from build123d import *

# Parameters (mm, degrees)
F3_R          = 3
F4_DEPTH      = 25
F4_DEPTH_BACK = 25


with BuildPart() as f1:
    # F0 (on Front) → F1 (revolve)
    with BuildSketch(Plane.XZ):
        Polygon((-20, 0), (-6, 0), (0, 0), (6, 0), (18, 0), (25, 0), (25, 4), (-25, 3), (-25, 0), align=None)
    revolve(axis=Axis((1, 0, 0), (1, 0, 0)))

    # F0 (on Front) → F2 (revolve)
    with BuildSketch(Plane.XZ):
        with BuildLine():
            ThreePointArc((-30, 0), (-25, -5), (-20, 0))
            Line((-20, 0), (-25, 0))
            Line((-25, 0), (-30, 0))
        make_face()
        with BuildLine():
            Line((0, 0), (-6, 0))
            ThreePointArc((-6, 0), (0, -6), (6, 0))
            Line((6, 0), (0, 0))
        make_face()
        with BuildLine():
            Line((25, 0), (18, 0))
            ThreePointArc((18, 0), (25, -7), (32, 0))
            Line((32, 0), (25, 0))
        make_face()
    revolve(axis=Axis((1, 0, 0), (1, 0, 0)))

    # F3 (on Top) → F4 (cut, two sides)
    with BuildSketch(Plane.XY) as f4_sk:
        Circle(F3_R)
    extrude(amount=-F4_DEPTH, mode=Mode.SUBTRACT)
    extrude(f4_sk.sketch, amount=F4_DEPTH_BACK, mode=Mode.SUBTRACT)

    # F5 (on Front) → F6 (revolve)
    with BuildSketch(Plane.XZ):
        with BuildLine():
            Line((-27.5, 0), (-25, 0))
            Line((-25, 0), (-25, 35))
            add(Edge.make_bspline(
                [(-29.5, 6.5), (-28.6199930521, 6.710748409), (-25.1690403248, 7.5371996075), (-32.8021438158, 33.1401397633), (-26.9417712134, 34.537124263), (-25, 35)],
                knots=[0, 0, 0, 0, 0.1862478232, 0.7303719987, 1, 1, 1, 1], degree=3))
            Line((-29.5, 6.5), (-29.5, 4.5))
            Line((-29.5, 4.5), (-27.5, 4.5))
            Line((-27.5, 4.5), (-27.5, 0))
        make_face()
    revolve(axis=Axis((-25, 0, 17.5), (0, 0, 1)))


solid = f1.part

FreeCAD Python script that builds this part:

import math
import FreeCAD as App
import Part
import Sketcher
from FreeCAD import Vector

doc = App.newDocument("Part")
body = doc.addObject("PartDesign::Body", "Body")

# Sketch on XZ plane
sketch1 = body.newObject("Sketcher::SketchObject", "Sketch")
sketch1.AttachmentSupport = (doc.getObject("XZ_Plane"), [""])
sketch1.MapMode = "FlatFace"
sketch1.addGeometry([
    Part.LineSegment(Vector(25, 0, 0), Vector(25, 4, 0)),
    Part.LineSegment(Vector(25, 4, 0), Vector(-25, 3, 0)),
    Part.LineSegment(Vector(-25, 3, 0), Vector(-25, 0, 0)),
    Part.LineSegment(Vector(-25, 0, 0), Vector(25, 0, 0)),
], False)
sketch1.addConstraint([
    Sketcher.Constraint("Coincident", 0, 2, 1, 1),
    Sketcher.Constraint("Coincident", 1, 2, 2, 1),
    Sketcher.Constraint("Coincident", 2, 2, 3, 1),
    Sketcher.Constraint("Coincident", 3, 2, 0, 1),
    Sketcher.Constraint("Vertical", 0),
    Sketcher.Constraint("Vertical", 2),
    Sketcher.Constraint("Horizontal", 3),
    Sketcher.Constraint("Symmetric", 2, 2, 3, 2, -1, 1),
    Sketcher.Constraint("DistanceX", 3, 1, 3, 2, 50.0),
    Sketcher.Constraint("DistanceY", 0, 1, 0, 2, 4.0),
    Sketcher.Constraint("DistanceY", 2, 2, 2, 1, 3.0),
])
revolution = body.newObject("PartDesign::Revolution", "Revolution")
revolution.Profile = sketch1
revolution.ReferenceAxis = (sketch1, ["H_Axis"])
revolution.Angle = 360

# Sketch on XZ plane
sketch2 = body.newObject("Sketcher::SketchObject", "Sketch001")
sketch2.AttachmentSupport = (doc.getObject("XZ_Plane"), [""])
sketch2.MapMode = "FlatFace"
sketch2.addGeometry([
    Part.ArcOfCircle(Part.Circle(Vector(-25, 0, 0), Vector(0, 0, 1), 5), math.radians(180), math.radians(360)),  # 0
    Part.LineSegment(Vector(-20, 0, 0), Vector(-30, 0, 0)),  # 1
    Part.ArcOfCircle(Part.Circle(Vector(0, 0, 0), Vector(0, 0, 1), 6), math.radians(180), math.radians(360)),  # 2
    Part.LineSegment(Vector(6, 0, 0), Vector(-6, 0, 0)),  # 3
    Part.ArcOfCircle(Part.Circle(Vector(25, 0, 0), Vector(0, 0, 1), 7), math.radians(180), math.radians(360)),  # 4
    Part.LineSegment(Vector(32, 0, 0), Vector(18, 0, 0)),  # 5
], False)
sketch2.addConstraint([
    Sketcher.Constraint("Coincident", 0, 1, 1, 2),
    Sketcher.Constraint("Coincident", 1, 1, 0, 2),
    Sketcher.Constraint("Coincident", 2, 1, 3, 2),
    Sketcher.Constraint("Coincident", 3, 1, 2, 2),
    Sketcher.Constraint("Coincident", 4, 1, 5, 2),
    Sketcher.Constraint("Coincident", 5, 1, 4, 2),
    Sketcher.Constraint("Horizontal", 1),
    Sketcher.Constraint("Horizontal", 3),
    Sketcher.Constraint("Horizontal", 5),
    Sketcher.Constraint("Coincident", 2, 3, -1, 1),
    Sketcher.Constraint("Symmetric", 0, 3, 4, 3, -1, 1),
    Sketcher.Constraint("PointOnObject", 0, 3, -1),
    Sketcher.Constraint("PointOnObject", 0, 1, -1),
    Sketcher.Constraint("PointOnObject", 2, 1, -1),
    Sketcher.Constraint("PointOnObject", 4, 1, -1),
    Sketcher.Constraint("Radius", 0, 5.0),
    Sketcher.Constraint("Radius", 2, 6.0),
    Sketcher.Constraint("Radius", 4, 7.0),
    Sketcher.Constraint("DistanceX", 0, 3, -1, 1, 25.0),
])
revolution2 = body.newObject("PartDesign::Revolution", "Revolution001")
revolution2.Profile = sketch2
revolution2.ReferenceAxis = (sketch2, ["H_Axis"])
revolution2.Angle = 360

# Sketch on XY plane
sketch3 = body.newObject("Sketcher::SketchObject", "Sketch002")
sketch3.AttachmentSupport = (doc.getObject("XY_Plane"), [""])
sketch3.MapMode = "FlatFace"
sketch3.addGeometry(Part.Circle(Vector(0, 0, 0), Vector(0, 0, 1), 3), False)
sketch3.addConstraint([
    Sketcher.Constraint("Coincident", 0, 3, -1, 1),
    Sketcher.Constraint("Diameter", 0, 6.0),
])
pocket1 = body.newObject("PartDesign::Pocket", "Pocket")
pocket1.Profile = sketch3
pocket1.Type = "ThroughAll"
pocket1.Midplane = True

# Sketch on XZ plane
sketch4 = body.newObject("Sketcher::SketchObject", "Sketch003")
sketch4.AttachmentSupport = (doc.getObject("XZ_Plane"), [""])
sketch4.MapMode = "FlatFace"
sketch4.addGeometry([
    Part.LineSegment(Vector(-27.5, 0, 0), Vector(-25, 0, 0)),  # 0
    Part.LineSegment(Vector(-25, 0, 0), Vector(-25, 35, 0)),  # 1
    Part.BSplineCurve([Vector(-29.5, 6.5, 0), Vector(-28.619993, 6.710748, 0), Vector(-25.16904, 7.5372, 0), Vector(-32.802144, 33.14014, 0), Vector(-26.941771, 34.537124, 0), Vector(-25, 35, 0)], [4, 1, 1, 4], [0, 0.186247823, 0.730371999, 1], False, 3, [1, 1, 1, 1, 1, 1], False),  # 2
    Part.LineSegment(Vector(-29.5, 6.5, 0), Vector(-29.5, 4.5, 0)),  # 3
    Part.LineSegment(Vector(-29.5, 4.5, 0), Vector(-27.5, 4.5, 0)),  # 4
    Part.LineSegment(Vector(-27.5, 4.5, 0), Vector(-27.5, 0, 0)),  # 5
], False)
sketch4.addGeometry(Part.LineSegment(Vector(-25, 0, 0), Vector(-25, 35, 0)), True)  # axis
sketch4.addConstraint([
    Sketcher.Constraint("Block", 2),
    Sketcher.Constraint("Coincident", 0, 2, 1, 1),
    Sketcher.Constraint("Coincident", 1, 2, 2, 2),
    Sketcher.Constraint("Coincident", 2, 1, 3, 1),
    Sketcher.Constraint("Coincident", 3, 2, 4, 1),
    Sketcher.Constraint("Coincident", 4, 2, 5, 1),
    Sketcher.Constraint("Coincident", 5, 2, 0, 1),
    Sketcher.Constraint("Horizontal", 0),
    Sketcher.Constraint("Vertical", 1),
    Sketcher.Constraint("Vertical", 3),
    Sketcher.Constraint("Horizontal", 4),
    Sketcher.Constraint("Vertical", 5),
    Sketcher.Constraint("Vertical", 6),
    Sketcher.Constraint("Coincident", 6, 1, 0, 2),
    Sketcher.Constraint("PointOnObject", 0, 2, -1),
    Sketcher.Constraint("Equal", 4, 3),
    Sketcher.Constraint("Equal", 1, 6),
    Sketcher.Constraint("DistanceX", 4, 1, 4, 2, 2.0),
])
revolution3 = body.newObject("PartDesign::Revolution", "Revolution002")
revolution3.Profile = sketch4
revolution3.ReferenceAxis = (sketch4, ["Axis0"])
revolution3.Angle = 360

doc.recompute()
